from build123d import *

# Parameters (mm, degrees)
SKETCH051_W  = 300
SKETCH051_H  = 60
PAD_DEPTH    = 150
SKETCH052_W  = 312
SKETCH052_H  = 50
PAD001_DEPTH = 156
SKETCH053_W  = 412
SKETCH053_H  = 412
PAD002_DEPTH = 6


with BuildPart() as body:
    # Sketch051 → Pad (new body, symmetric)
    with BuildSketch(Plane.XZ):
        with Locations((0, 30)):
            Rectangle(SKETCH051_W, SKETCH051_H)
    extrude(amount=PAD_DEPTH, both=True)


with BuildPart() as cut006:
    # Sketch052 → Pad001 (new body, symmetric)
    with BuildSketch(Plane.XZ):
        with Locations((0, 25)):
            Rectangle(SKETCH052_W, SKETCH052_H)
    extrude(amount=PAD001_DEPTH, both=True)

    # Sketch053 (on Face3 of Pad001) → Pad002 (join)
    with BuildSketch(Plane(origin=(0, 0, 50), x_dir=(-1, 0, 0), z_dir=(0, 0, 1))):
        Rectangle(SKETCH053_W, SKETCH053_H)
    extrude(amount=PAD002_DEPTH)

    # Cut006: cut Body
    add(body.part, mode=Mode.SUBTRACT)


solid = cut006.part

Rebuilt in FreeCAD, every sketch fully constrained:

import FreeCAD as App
import Part
import Sketcher
from FreeCAD import Vector

doc = App.newDocument("Part")
body = doc.addObject("PartDesign::Body", "Body")

sketch1 = body.newObject("Sketcher::SketchObject", "Sketch")
sketch1.AttachmentSupport = (doc.getObject("XZ_Plane"), [""])
sketch1.MapMode = "FlatFace"
sketch1.addGeometry(Part.LineSegment(Vector(-150, 60, 0), Vector(-150, 0, 0)), False)
sketch1.addGeometry(Part.LineSegment(Vector(-150, 0, 0), Vector(150, 0, 0)), False)
sketch1.addGeometry(Part.LineSegment(Vector(150, 0, 0), Vector(150, 60, 0)), False)
sketch1.addGeometry(Part.LineSegment(Vector(150, 60, 0), Vector(-150, 60, 0)), False)
sketch1.addConstraint(Sketcher.Constraint("Coincident", 0, 2, 1, 1))
sketch1.addConstraint(Sketcher.Constraint("Coincident", 1, 2, 2, 1))
sketch1.addConstraint(Sketcher.Constraint("Coincident", 2, 2, 3, 1))
sketch1.addConstraint(Sketcher.Constraint("Coincident", 3, 2, 0, 1))
sketch1.addConstraint(Sketcher.Constraint("Vertical", 0))
sketch1.addConstraint(Sketcher.Constraint("Horizontal", 1))
sketch1.addConstraint(Sketcher.Constraint("Vertical", 2))
sketch1.addConstraint(Sketcher.Constraint("Horizontal", 3))
sketch1.addConstraint(Sketcher.Constraint("Symmetric", 0, 2, 1, 2, -1, 1))
sketch1.addConstraint(Sketcher.Constraint("DistanceX", 1, 1, 1, 2, 300.0))
sketch1.addConstraint(Sketcher.Constraint("DistanceY", 0, 2, 0, 1, 60.0))
pad1 = body.newObject("PartDesign::Pad", "Pad")
pad1.Profile = sketch1
pad1.Length = 300
pad1.Midplane = True
body2 = doc.addObject("PartDesign::Body", "Body001")

sketch2 = body2.newObject("Sketcher::SketchObject", "Sketch001")
sketch2.AttachmentSupport = (doc.getObject("XZ_Plane001"), [""])
sketch2.MapMode = "FlatFace"
sketch2.addGeometry(Part.LineSegment(Vector(-156, 50, 0), Vector(-156, 0, 0)), False)
sketch2.addGeometry(Part.LineSegment(Vector(-156, 0, 0), Vector(156, 0, 0)), False)
sketch2.addGeometry(Part.LineSegment(Vector(156, 0, 0), Vector(156, 50, 0)), False)
sketch2.addGeometry(Part.LineSegment(Vector(156, 50, 0), Vector(-156, 50, 0)), False)
sketch2.addConstraint(Sketcher.Constraint("Coincident", 0, 2, 1, 1))
sketch2.addConstraint(Sketcher.Constraint("Coincident", 1, 2, 2, 1))
sketch2.addConstraint(Sketcher.Constraint("Coincident", 2, 2, 3, 1))
sketch2.addConstraint(Sketcher.Constraint("Coincident", 3, 2, 0, 1))
sketch2.addConstraint(Sketcher.Constraint("Vertical", 0))
sketch2.addConstraint(Sketcher.Constraint("Horizontal", 1))
sketch2.addConstraint(Sketcher.Constraint("Vertical", 2))
sketch2.addConstraint(Sketcher.Constraint("Horizontal", 3))
sketch2.addConstraint(Sketcher.Constraint("Symmetric", 0, 2, 1, 2, -1, 1))
sketch2.addConstraint(Sketcher.Constraint("DistanceX", 1, 1, 1, 2, 312.0))
sketch2.addConstraint(Sketcher.Constraint("DistanceY", 0, 2, 0, 1, 50.0))
pad2 = body2.newObject("PartDesign::Pad", "Pad001")
pad2.Profile = sketch2
pad2.Length = 312
pad2.Midplane = True

sketch3 = body2.newObject("Sketcher::SketchObject", "Sketch002")
sketch3.AttachmentSupport = (doc.getObject("XY_Plane001"), [""])
sketch3.MapMode = "FlatFace"
sketch3.AttachmentOffset = App.Placement(Vector(0, 0, 50), App.Rotation())
sketch3.addGeometry(Part.LineSegment(Vector(206, -206, 0), Vector(206, 206, 0)), False)
sketch3.addGeometry(Part.LineSegment(Vector(206, 206, 0), Vector(-206, 206, 0)), False)
sketch3.addGeometry(Part.LineSegment(Vector(-206, 206, 0), Vector(-206, -206, 0)), False)
sketch3.addGeometry(Part.LineSegment(Vector(-206, -206, 0), Vector(206, -206, 0)), False)
sketch3.addConstraint(Sketcher.Constraint("Coincident", 0, 2, 1, 1))
sketch3.addConstraint(Sketcher.Constraint("Coincident", 1, 2, 2, 1))
sketch3.addConstraint(Sketcher.Constraint("Coincident", 2, 2, 3, 1))
sketch3.addConstraint(Sketcher.Constraint("Coincident", 3, 2, 0, 1))
sketch3.addConstraint(Sketcher.Constraint("Vertical", 0))
sketch3.addConstraint(Sketcher.Constraint("Horizontal", 1))
sketch3.addConstraint(Sketcher.Constraint("Vertical", 2))
sketch3.addConstraint(Sketcher.Constraint("Horizontal", 3))
sketch3.addConstraint(Sketcher.Constraint("Symmetric", 0, 2, 2, 2, -1, 1))
sketch3.addConstraint(Sketcher.Constraint("Equal", 3, 0))
sketch3.addConstraint(Sketcher.Constraint("DistanceX", 1, 2, 1, 1, 412.0))
pad3 = body2.newObject("PartDesign::Pad", "Pad002")
pad3.Profile = sketch3
pad3.Length = 6
doc.recompute()

boolean = body2.newObject("PartDesign::Boolean", "Boolean")
boolean.Type = "Cut"
boolean.addObjects([body])

doc.recompute()
